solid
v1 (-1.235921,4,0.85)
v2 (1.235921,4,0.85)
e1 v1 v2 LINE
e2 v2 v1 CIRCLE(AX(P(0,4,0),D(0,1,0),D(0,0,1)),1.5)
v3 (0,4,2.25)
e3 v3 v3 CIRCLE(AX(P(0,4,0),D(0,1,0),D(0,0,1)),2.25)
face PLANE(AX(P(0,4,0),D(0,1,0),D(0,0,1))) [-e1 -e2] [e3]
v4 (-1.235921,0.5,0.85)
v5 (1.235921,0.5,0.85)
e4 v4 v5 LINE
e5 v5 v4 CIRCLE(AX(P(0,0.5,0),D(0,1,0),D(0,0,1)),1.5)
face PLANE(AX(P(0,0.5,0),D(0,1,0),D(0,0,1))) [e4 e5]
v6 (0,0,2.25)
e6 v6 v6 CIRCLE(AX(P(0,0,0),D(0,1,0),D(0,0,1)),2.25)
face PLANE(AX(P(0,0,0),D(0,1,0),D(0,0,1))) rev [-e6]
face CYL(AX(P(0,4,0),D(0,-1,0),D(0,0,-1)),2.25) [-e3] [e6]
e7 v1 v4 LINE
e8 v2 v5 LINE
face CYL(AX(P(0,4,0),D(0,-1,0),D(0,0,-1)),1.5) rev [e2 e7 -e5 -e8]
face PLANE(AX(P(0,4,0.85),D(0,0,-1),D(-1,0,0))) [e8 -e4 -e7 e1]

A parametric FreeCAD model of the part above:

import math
import FreeCAD as App
import Part
import Sketcher
Q = App.Units.Quantity

doc = App.newDocument("Part")
params = doc.addObject("Spreadsheet::Sheet", "Params")
for row, (alias, value) in enumerate([
    ("sketch1_diameter", "4.5 mm"),
    ("sketch1_radius", "1.5 mm"),
    ("pad1_length", "4 mm"),
    ("sketch2_diameter", "3 mm"),
    ("pad2_length", "0.5 mm"),
], start=1):
    params.set(f"A{row}", alias)
    params.set(f"B{row}", "=" + value)
    params.setAlias(f"B{row}", alias)

body = doc.addObject("PartDesign::Body", "Body")

# Sketch on XZ plane
sketch1 = doc.addObject("Sketcher::SketchObject", "Sketch")
body.addObject(sketch1)
sketch1.AttachmentSupport = (doc.XZ_Plane, [""])
sketch1.MapMode = "FlatFace"
sketch1.addGeometry(Part.Circle(App.Vector(0, 0, 0), App.Vector(0, 0, 1), 2.2), False)
sketch1.addGeometry(Part.ArcOfCircle(Part.Circle(App.Vector(0, 0, 0), App.Vector(0, 0, 1), 1.5), math.radians(145), math.radians(395)), False)
sketch1.addGeometry(Part.LineSegment(App.Vector(1.2, 0.8, 0), App.Vector(-1.2, 0.8, 0)), False)
sketch1.addConstraint(Sketcher.Constraint("Coincident", 1, 1, 2, 2))
sketch1.addConstraint(Sketcher.Constraint("Coincident", 2, 1, 1, 2))
sketch1.addConstraint(Sketcher.Constraint("Horizontal", 2))
sketch1.addConstraint(Sketcher.Constraint("Coincident", 0, 3, -1, 1))
sketch1.addConstraint(Sketcher.Constraint("Coincident", 1, 3, -1, 1))
sketch1.addConstraint(Sketcher.Constraint("Diameter", 0, Q("4.5 mm")))
sketch1.addConstraint(Sketcher.Constraint("Radius", 1, Q("1.5 mm")))
sketch1.addConstraint(Sketcher.Constraint("DistanceY", -1, 1, 1, 1, Q("0.85 mm")))
sketch1.setExpression("Constraints[5]", "Params.sketch1_diameter")
sketch1.setExpression("Constraints[6]", "Params.sketch1_radius")
pad1 = doc.addObject("PartDesign::Pad", "Pad")
body.addObject(pad1)
pad1.Profile = sketch1
pad1.setExpression("Length", "Params.pad1_length")
pad1.Reversed = True

# Sketch on XZ plane
sketch2 = doc.addObject("Sketcher::SketchObject", "Sketch001")
body.addObject(sketch2)
sketch2.AttachmentSupport = (doc.XZ_Plane, [""])
sketch2.MapMode = "FlatFace"
sketch2.addGeometry(Part.Circle(App.Vector(0, 0, 0), App.Vector(0, 0, 1), 1.5), False)
sketch2.addConstraint(Sketcher.Constraint("Coincident", 0, 3, -1, 1))
sketch2.addConstraint(Sketcher.Constraint("Diameter", 0, Q("3 mm")))
sketch2.setExpression("Constraints[1]", "Params.sketch2_diameter")
pad2 = doc.addObject("PartDesign::Pad", "Pad001")
body.addObject(pad2)
pad2.Profile = sketch2
pad2.setExpression("Length", "Params.pad2_length")
pad2.Reversed = True

doc.recompute()
